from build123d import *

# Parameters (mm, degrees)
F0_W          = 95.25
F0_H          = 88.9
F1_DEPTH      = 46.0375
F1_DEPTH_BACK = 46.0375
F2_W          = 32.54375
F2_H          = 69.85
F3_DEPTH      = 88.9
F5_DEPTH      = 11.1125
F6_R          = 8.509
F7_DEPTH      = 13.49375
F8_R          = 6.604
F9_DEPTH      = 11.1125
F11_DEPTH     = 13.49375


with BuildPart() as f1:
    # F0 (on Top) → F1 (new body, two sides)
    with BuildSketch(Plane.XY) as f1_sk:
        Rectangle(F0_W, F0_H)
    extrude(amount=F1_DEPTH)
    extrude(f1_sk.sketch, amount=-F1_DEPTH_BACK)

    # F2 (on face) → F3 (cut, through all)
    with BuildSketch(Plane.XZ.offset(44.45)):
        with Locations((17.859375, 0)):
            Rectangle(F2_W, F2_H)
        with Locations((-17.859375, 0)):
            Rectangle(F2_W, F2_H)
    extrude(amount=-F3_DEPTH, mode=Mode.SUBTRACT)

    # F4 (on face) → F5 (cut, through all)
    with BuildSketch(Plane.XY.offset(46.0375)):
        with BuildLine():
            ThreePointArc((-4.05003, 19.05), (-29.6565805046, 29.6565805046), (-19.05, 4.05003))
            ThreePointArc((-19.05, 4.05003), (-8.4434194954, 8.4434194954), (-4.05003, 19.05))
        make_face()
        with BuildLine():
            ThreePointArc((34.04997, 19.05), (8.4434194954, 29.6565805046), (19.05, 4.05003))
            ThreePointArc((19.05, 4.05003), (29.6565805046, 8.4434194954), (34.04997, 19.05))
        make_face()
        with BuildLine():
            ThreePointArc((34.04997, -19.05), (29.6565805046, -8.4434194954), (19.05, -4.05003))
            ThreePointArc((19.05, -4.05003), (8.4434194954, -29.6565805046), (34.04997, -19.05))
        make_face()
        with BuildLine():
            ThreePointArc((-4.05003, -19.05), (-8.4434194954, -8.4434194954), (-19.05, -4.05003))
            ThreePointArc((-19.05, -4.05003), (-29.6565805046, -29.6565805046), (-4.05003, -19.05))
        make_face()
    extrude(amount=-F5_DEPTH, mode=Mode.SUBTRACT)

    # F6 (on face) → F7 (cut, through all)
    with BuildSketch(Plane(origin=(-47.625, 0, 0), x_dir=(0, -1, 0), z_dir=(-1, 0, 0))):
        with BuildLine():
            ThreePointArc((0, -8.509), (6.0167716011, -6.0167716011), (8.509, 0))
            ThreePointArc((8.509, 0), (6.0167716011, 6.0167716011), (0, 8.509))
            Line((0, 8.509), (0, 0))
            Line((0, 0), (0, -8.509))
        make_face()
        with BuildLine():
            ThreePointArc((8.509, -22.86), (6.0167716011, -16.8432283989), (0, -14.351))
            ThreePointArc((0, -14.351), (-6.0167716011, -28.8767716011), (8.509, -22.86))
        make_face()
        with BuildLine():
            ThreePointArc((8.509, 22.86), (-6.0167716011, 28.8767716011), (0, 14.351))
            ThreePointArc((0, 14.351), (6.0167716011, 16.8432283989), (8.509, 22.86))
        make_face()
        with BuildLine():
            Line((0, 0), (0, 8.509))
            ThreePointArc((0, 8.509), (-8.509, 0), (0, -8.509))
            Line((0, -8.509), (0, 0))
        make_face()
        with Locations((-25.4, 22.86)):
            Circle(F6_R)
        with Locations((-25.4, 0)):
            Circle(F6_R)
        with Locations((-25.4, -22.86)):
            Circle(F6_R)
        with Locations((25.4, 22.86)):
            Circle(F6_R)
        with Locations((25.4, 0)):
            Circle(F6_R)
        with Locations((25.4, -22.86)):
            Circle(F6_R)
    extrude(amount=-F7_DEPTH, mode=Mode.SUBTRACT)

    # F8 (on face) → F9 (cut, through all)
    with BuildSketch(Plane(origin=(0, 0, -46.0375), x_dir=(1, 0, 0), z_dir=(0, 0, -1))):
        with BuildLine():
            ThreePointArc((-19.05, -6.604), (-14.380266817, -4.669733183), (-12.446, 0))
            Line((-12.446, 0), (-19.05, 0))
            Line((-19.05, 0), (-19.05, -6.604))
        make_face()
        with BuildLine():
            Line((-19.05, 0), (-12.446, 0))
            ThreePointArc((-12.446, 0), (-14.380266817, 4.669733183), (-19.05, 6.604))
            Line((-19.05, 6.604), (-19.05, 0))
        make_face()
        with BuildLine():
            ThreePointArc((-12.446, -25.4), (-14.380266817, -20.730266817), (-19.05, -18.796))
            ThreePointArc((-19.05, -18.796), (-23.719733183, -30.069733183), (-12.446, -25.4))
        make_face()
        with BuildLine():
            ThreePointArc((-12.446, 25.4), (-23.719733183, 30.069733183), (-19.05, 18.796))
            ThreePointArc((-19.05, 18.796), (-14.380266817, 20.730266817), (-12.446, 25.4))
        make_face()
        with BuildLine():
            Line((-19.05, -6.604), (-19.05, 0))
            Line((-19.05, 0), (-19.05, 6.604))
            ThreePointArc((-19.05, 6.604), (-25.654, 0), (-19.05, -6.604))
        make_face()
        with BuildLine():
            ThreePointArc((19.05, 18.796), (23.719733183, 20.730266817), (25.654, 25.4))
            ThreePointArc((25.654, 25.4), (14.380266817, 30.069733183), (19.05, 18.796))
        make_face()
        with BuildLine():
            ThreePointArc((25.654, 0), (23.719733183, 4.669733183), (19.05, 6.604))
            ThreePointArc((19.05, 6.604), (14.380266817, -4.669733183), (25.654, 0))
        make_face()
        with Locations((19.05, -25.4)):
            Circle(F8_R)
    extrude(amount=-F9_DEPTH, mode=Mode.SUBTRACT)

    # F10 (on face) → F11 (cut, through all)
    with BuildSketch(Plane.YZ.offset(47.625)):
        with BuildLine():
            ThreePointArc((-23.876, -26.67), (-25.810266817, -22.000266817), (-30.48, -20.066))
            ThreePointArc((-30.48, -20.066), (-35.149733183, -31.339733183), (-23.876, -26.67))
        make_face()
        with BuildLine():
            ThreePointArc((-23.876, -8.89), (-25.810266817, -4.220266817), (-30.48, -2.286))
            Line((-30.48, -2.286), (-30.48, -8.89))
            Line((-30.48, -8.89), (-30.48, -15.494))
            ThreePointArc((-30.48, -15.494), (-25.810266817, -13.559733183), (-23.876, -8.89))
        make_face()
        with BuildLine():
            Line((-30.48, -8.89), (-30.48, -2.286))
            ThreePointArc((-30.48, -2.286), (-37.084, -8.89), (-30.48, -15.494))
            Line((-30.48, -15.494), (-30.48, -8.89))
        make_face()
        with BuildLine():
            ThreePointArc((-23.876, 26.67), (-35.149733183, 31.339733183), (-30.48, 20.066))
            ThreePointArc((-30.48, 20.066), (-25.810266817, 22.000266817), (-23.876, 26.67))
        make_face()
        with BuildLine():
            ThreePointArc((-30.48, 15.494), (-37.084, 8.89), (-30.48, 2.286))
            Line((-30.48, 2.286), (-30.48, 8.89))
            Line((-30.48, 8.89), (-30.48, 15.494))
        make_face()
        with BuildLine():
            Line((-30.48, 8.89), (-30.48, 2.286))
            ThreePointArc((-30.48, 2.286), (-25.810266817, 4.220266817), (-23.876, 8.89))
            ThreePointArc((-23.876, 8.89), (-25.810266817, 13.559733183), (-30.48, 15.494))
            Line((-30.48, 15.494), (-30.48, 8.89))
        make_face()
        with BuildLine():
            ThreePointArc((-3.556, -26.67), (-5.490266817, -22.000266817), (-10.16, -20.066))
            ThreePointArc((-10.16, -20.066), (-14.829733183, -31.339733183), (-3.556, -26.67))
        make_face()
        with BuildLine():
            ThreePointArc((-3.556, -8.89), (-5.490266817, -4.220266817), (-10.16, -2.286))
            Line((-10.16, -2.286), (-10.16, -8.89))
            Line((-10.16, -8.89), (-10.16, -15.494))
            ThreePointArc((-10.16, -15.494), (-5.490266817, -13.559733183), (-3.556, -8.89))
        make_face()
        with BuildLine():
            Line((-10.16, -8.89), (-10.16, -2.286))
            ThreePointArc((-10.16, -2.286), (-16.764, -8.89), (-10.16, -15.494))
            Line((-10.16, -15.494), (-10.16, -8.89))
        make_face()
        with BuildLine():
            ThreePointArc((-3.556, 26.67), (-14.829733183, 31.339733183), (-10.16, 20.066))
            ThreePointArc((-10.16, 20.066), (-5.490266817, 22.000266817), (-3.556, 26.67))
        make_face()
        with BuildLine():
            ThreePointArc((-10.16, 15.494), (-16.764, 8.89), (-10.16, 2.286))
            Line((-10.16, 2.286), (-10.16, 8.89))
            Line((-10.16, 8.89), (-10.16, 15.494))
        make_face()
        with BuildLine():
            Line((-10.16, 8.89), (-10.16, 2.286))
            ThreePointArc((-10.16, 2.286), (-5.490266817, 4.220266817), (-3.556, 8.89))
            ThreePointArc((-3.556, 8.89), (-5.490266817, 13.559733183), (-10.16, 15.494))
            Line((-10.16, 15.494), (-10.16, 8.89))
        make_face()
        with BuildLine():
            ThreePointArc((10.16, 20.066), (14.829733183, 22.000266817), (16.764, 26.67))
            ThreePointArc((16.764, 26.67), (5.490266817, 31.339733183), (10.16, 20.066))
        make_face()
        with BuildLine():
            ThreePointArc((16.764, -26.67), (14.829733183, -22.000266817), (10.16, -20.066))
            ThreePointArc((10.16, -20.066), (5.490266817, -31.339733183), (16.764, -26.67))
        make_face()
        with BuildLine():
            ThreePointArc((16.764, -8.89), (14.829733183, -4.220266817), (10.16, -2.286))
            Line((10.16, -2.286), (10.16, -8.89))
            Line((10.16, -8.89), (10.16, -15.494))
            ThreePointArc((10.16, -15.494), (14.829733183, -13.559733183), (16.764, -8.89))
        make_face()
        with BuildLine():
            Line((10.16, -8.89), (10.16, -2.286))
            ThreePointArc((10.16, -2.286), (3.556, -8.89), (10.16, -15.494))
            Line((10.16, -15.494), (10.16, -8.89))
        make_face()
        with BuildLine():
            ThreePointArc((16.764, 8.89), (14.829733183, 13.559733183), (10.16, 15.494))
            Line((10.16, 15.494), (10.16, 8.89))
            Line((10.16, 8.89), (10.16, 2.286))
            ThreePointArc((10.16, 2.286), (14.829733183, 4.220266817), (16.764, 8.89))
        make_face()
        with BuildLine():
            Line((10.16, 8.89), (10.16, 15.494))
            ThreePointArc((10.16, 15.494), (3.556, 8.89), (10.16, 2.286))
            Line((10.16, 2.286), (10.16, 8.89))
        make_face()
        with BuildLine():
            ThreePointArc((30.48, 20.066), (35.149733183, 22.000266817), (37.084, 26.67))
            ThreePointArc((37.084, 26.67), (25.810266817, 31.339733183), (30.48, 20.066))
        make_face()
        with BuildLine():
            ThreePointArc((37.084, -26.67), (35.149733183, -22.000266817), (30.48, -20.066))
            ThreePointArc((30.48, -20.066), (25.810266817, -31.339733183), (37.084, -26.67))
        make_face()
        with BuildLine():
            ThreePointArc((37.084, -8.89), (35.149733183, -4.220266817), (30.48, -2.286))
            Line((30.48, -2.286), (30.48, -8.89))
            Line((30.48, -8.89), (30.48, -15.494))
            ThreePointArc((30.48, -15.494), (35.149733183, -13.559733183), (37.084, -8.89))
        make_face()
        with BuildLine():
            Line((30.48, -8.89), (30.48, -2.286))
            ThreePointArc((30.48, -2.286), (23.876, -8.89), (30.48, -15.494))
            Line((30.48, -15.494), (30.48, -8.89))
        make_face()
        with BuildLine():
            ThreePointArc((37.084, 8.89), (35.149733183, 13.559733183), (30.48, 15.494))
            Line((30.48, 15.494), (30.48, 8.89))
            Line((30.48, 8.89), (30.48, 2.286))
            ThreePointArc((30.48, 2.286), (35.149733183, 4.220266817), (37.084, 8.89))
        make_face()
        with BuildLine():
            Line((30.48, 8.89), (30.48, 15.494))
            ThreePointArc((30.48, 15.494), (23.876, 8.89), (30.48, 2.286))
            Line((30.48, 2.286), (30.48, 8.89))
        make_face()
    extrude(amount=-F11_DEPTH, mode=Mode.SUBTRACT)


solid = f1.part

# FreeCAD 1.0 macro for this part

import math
import FreeCAD as App
import Part
import Sketcher
Q = App.Units.Quantity


def add_polygon(sketch, points):
    """Adds a closed chain of lines whose ends are joined by coincident constraints."""
    first, n = sketch.GeometryCount, len(points)
    for a, b in zip(points, points[1:] + points[:1]):
        sketch.addGeometry(Part.LineSegment(App.Vector(*a, 0), App.Vector(*b, 0)), False)
    for i in range(n):
        sketch.addConstraint(Sketcher.Constraint("Coincident", first + i, 2, first + (i + 1) % n, 1))

doc = App.newDocument("Part")
body = doc.addObject("PartDesign::Body", "Body")

# Sketch on XY plane
sketch1 = body.newObject("Sketcher::SketchObject", "Sketch")
sketch1.AttachmentSupport = (doc.getObject("XY_Plane"), [""])
sketch1.MapMode = "FlatFace"
add_polygon(sketch1, [(-47.625, 44.45), (-47.625, -44.45), (47.625, -44.45), (47.625, 44.45)])  # lines 0-3
sketch1.addConstraint(Sketcher.Constraint("Vertical", 0))
sketch1.addConstraint(Sketcher.Constraint("Horizontal", 1))
sketch1.addConstraint(Sketcher.Constraint("Vertical", 2))
sketch1.addConstraint(Sketcher.Constraint("Horizontal", 3))
sketch1.addConstraint(Sketcher.Constraint("Symmetric", 0, 2, 2, 2, -1, 1))
sketch1.addConstraint(Sketcher.Constraint("DistanceY", 0, 2, 0, 1, Q("3.5 in")))
sketch1.addConstraint(Sketcher.Constraint("DistanceX", 1, 1, 1, 2, Q("3.75 in")))
pad1 = body.newObject("PartDesign::Pad", "Pad")
pad1.Profile = sketch1
pad1.Type = "TwoLengths"
pad1.Length = Q("1.8125 in")
pad1.Length2 = Q("1.8125 in")

# Sketch on XZ plane
sketch2 = body.newObject("Sketcher::SketchObject", "Sketch001")
sketch2.AttachmentSupport = (doc.getObject("XZ_Plane"), [""])
sketch2.MapMode = "FlatFace"
sketch2.AttachmentOffset = App.Placement(App.Vector(0, 0, 1.75 * 25.4), App.Rotation())
add_polygon(sketch2, [(1.5875, 34.925), (1.5875, -34.925), (34.13125, -34.925), (34.13125, 34.925)])  # lines 0-3
add_polygon(sketch2, [(-34.13125, 34.925), (-34.13125, -34.925), (-1.5875, -34.925), (-1.5875, 34.925)])  # lines 4-7
sketch2.addConstraint(Sketcher.Constraint("Vertical", 0))
sketch2.addConstraint(Sketcher.Constraint("Horizontal", 1))
sketch2.addConstraint(Sketcher.Constraint("Vertical", 2))
sketch2.addConstraint(Sketcher.Constraint("Horizontal", 3))
sketch2.addConstraint(Sketcher.Constraint("Vertical", 4))
sketch2.addConstraint(Sketcher.Constraint("Horizontal", 5))
sketch2.addConstraint(Sketcher.Constraint("Vertical", 6))
sketch2.addConstraint(Sketcher.Constraint("Horizontal", 7))
sketch2.addConstraint(Sketcher.Constraint("Symmetric", 2, 2, 4, 2, -1, 1))
sketch2.addConstraint(Sketcher.Constraint("Symmetric", 0, 2, 6, 2, -1, 1))
sketch2.addConstraint(Sketcher.Constraint("Horizontal", 1, 2, 4, 2))
sketch2.addConstraint(Sketcher.Constraint("DistanceY", 0, 2, 0, 1, Q("2.75 in")))
sketch2.addConstraint(Sketcher.Constraint("DistanceX", 1, 1, 1, 2, Q("1.28125 in")))
sketch2.addConstraint(Sketcher.Constraint("DistanceX", -1, 1, 0, 2, Q("0.0625 in")))
pocket1 = body.newObject("PartDesign::Pocket", "Pocket")
pocket1.Profile = sketch2
pocket1.Type = "ThroughAll"

# Sketch on XY plane
sketch3 = body.newObject("Sketcher::SketchObject", "Sketch002")
sketch3.AttachmentSupport = (doc.getObject("XY_Plane"), [""])
sketch3.MapMode = "FlatFace"
sketch3.AttachmentOffset = App.Placement(App.Vector(0, 0, 1.8125 * 25.4), App.Rotation())
sketch3.addGeometry(Part.ArcOfCircle(Part.Circle(App.Vector(-19.05, 19.05, 0), App.Vector(0, 0, 1), 14.99997), math.radians(0), math.radians(270)), False)
sketch3.addGeometry(Part.ArcOfCircle(Part.Circle(App.Vector(-19.05, 19.05, 0), App.Vector(0, 0, 1), 14.99997), math.radians(-90), math.radians(0)), False)
sketch3.addGeometry(Part.ArcOfCircle(Part.Circle(App.Vector(19.05, 19.05, 0), App.Vector(0, 0, 1), 14.99997), math.radians(0), math.radians(270)), False)
sketch3.addGeometry(Part.ArcOfCircle(Part.Circle(App.Vector(19.05, 19.05, 0), App.Vector(0, 0, 1), 14.99997), math.radians(-90), math.radians(0)), False)
sketch3.addGeometry(Part.ArcOfCircle(Part.Circle(App.Vector(19.05, -19.05, 0), App.Vector(0, 0, 1), 14.99997), math.radians(0), math.radians(90)), False)
sketch3.addGeometry(Part.ArcOfCircle(Part.Circle(App.Vector(19.05, -19.05, 0), App.Vector(0, 0, 1), 14.99997), math.radians(90), math.radians(360)), False)
sketch3.addGeometry(Part.ArcOfCircle(Part.Circle(App.Vector(-19.05, -19.05, 0), App.Vector(0, 0, 1), 14.99997), math.radians(0), math.radians(90)), False)
sketch3.addGeometry(Part.ArcOfCircle(Part.Circle(App.Vector(-19.05, -19.05, 0), App.Vector(0, 0, 1), 14.99997), math.radians(90), math.radians(360)), False)
sketch3.addConstraint(Sketcher.Constraint("Tangent", 0, 1, 1, 2))
sketch3.addConstraint(Sketcher.Constraint("Coincident", 1, 1, 0, 2))
sketch3.addConstraint(Sketcher.Constraint("Tangent", 2, 1, 3, 2))
sketch3.addConstraint(Sketcher.Constraint("Coincident", 3, 1, 2, 2))
sketch3.addConstraint(Sketcher.Constraint("Tangent", 4, 1, 5, 2))
sketch3.addConstraint(Sketcher.Constraint("Coincident", 5, 1, 4, 2))
sketch3.addConstraint(Sketcher.Constraint("Tangent", 6, 1, 7, 2))
sketch3.addConstraint(Sketcher.Constraint("Coincident", 7, 1, 6, 2))
sketch3.addConstraint(Sketcher.Constraint("Equal", 1, 2))
sketch3.addConstraint(Sketcher.Constraint("Equal", 3, 4))
sketch3.addConstraint(Sketcher.Constraint("Equal", 5, 6))
sketch3.addConstraint(Sketcher.Constraint("Symmetric", 0, 3, 4, 3, -1, 1))
sketch3.addConstraint(Sketcher.Constraint("Symmetric", 2, 3, 6, 3, -1, 1))
sketch3.addConstraint(Sketcher.Constraint("Symmetric", 0, 3, 2, 3, -2))
sketch3.addConstraint(Sketcher.Constraint("Horizontal", 3, 3, 0, 1))
sketch3.addConstraint(Sketcher.Constraint("Horizontal", 0, 1, 2, 1))
sketch3.addConstraint(Sketcher.Constraint("Horizontal", 7, 3, 4, 1))
sketch3.addConstraint(Sketcher.Constraint("Horizontal", 4, 1, 6, 1))
sketch3.addConstraint(Sketcher.Constraint("Vertical", 7, 3, 1, 1))
sketch3.addConstraint(Sketcher.Constraint("Vertical", 5, 3, 3, 1))
sketch3.addConstraint(Sketcher.Constraint("Vertical", 3, 1, 5, 1))
sketch3.addConstraint(Sketcher.Constraint("Vertical", 1, 1, 7, 1))
sketch3.addConstraint(Sketcher.Constraint("DistanceX", 0, 3, 2, 3, Q("1.5 in")))
sketch3.addConstraint(Sketcher.Constraint("DistanceY", 4, 3, 2, 3, Q("1.5 in")))
sketch3.addConstraint(Sketcher.Constraint("Radius", 0, Q("14.99997 mm")))
pocket2 = body.newObject("PartDesign::Pocket", "Pocket001")
pocket2.Profile = sketch3
pocket2.Length = Q("0.4375 in")

# Sketch on YZ plane
sketch4 = body.newObject("Sketcher::SketchObject", "Sketch003")
sketch4.AttachmentSupport = (doc.getObject("YZ_Plane"), [""])
sketch4.MapMode = "FlatFace"
sketch4.AttachmentOffset = App.Placement(App.Vector(0, 0, -1.875 * 25.4), App.Rotation())
sketch4.addGeometry(Part.ArcOfCircle(Part.Circle(App.Vector(0, 0, 0), App.Vector(0, 0, 1), 8.509), math.radians(180), math.radians(270)), False)
sketch4.addGeometry(Part.ArcOfCircle(Part.Circle(App.Vector(0, 0, 0), App.Vector(0, 0, 1), 8.509), math.radians(90), math.radians(180)), False)
sketch4.addGeometry(Part.ArcOfCircle(Part.Circle(App.Vector(0, 0, 0), App.Vector(0, 0, 1), 8.509), math.radians(-90), math.radians(90)), False)
sketch4.addGeometry(Part.ArcOfCircle(Part.Circle(App.Vector(0, -22.86, 0), App.Vector(0, 0, 1), 8.509), math.radians(90), math.radians(180)), False)
sketch4.addGeometry(Part.ArcOfCircle(Part.Circle(App.Vector(0, -22.86, 0), App.Vector(0, 0, 1), 8.509), math.radians(180), math.radians(450)), False)
sketch4.addGeometry(Part.ArcOfCircle(Part.Circle(App.Vector(0, 22.86, 0), App.Vector(0, 0, 1), 8.509), math.radians(-90), math.radians(180)), False)
sketch4.addGeometry(Part.ArcOfCircle(Part.Circle(App.Vector(0, 22.86, 0), App.Vector(0, 0, 1), 8.509), math.radians(180), math.radians(270)), False)
sketch4.addGeometry(Part.Circle(App.Vector(25.4, 22.86, 0), App.Vector(0, 0, 1), 8.509), False)
sketch4.addGeometry(Part.Circle(App.Vector(25.4, 0, 0), App.Vector(0, 0, 1), 8.509), False)
sketch4.addGeometry(Part.Circle(App.Vector(25.4, -22.86, 0), App.Vector(0, 0, 1), 8.509), False)
sketch4.addGeometry(Part.Circle(App.Vector(-25.4, 22.86, 0), App.Vector(0, 0, 1), 8.509), False)
sketch4.addGeometry(Part.Circle(App.Vector(-25.4, 0, 0), App.Vector(0, 0, 1), 8.509), False)
sketch4.addGeometry(Part.Circle(App.Vector(-25.4, -22.86, 0), App.Vector(0, 0, 1), 8.509), False)
sketch4.addConstraint(Sketcher.Constraint("Tangent", 0, 1, 1, 2))
sketch4.addConstraint(Sketcher.Constraint("Tangent", 1, 1, 2, 2))
sketch4.addConstraint(Sketcher.Constraint("Tangent", 2, 1, 0, 2))
sketch4.addConstraint(Sketcher.Constraint("Tangent", 3, 1, 4, 2))
sketch4.addConstraint(Sketcher.Constraint("Coincident", 4, 1, 3, 2))
sketch4.addConstraint(Sketcher.Constraint("Tangent", 5, 1, 6, 2))
sketch4.addConstraint(Sketcher.Constraint("Coincident", 6, 1, 5, 2))
sketch4.addConstraint(Sketcher.Constraint("Coincident", 0, 3, -1, 1))
sketch4.addConstraint(Sketcher.Constraint("Equal", 2, 3))
sketch4.addConstraint(Sketcher.Constraint("Equal", 4, 5))
sketch4.addConstraint(Sketcher.Constraint("Equal", 6, 7))
sketch4.addConstraint(Sketcher.Constraint("Equal", 7, 8))
sketch4.addConstraint(Sketcher.Constraint("Equal", 8, 9))
sketch4.addConstraint(Sketcher.Constraint("Equal", 9, 10))
sketch4.addConstraint(Sketcher.Constraint("Equal", 10, 11))
sketch4.addConstraint(Sketcher.Constraint("Equal", 11, 12))
sketch4.addConstraint(Sketcher.Constraint("Symmetric", 3, 3, 5, 3, -1, 1))
sketch4.addConstraint(Sketcher.Constraint("Symmetric", 9, 3, 10, 3, -1, 1))
sketch4.addConstraint(Sketcher.Constraint("Symmetric", 8, 3, 11, 3, -1, 1))
sketch4.addConstraint(Sketcher.Constraint("Symmetric", 7, 3, 12, 3, -1, 1))
sketch4.addConstraint(Sketcher.Constraint("Symmetric", 7, 3, 10, 3, -2))
sketch4.addConstraint(Sketcher.Constraint("Symmetric", 4, 1, 6, 1, -1))
sketch4.addConstraint(Sketcher.Constraint("PointOnObject", 8, 3, -1))
sketch4.addConstraint(Sketcher.Constraint("PointOnObject", 0, 1, -1))
sketch4.addConstraint(Sketcher.Constraint("PointOnObject", 1, 1, -2))
sketch4.addConstraint(Sketcher.Constraint("PointOnObject", 2, 1, -2))
sketch4.addConstraint(Sketcher.Constraint("PointOnObject", 3, 1, -2))
sketch4.addConstraint(Sketcher.Constraint("PointOnObject", 5, 1, -2))
sketch4.addConstraint(Sketcher.Constraint("Horizontal", 6, 3, 7, 3))
sketch4.addConstraint(Sketcher.Constraint("Horizontal", 12, 3, 4, 1))
sketch4.addConstraint(Sketcher.Constraint("Vertical", 7, 3, 8, 3))
sketch4.addConstraint(Sketcher.Constraint("Diameter", 7, Q("0.67 in")))
sketch4.addConstraint(Sketcher.Constraint("DistanceX", -1, 1, 7, 3, Q("1 in")))
sketch4.addConstraint(Sketcher.Constraint("DistanceY", 3, 3, -1, 1, Q("0.9 in")))
pocket3 = body.newObject("PartDesign::Pocket", "Pocket002")
pocket3.Profile = sketch4
pocket3.Length = Q("0.53125 in")
pocket3.Reversed = True

# Sketch on XY plane
sketch5 = body.newObject("Sketcher::SketchObject", "Sketch004")
sketch5.AttachmentSupport = (doc.getObject("XY_Plane"), [""])
sketch5.MapMode = "FlatFace"
sketch5.AttachmentOffset = App.Placement(App.Vector(0, 0, -1.8125 * 25.4), App.Rotation())
sketch5.addGeometry(Part.ArcOfCircle(Part.Circle(App.Vector(-19.05, 0, 0), App.Vector(0, 0, 1), 6.604), math.radians(0), math.radians(90)), False)
sketch5.addGeometry(Part.ArcOfCircle(Part.Circle(App.Vector(-19.05, 0, 0), App.Vector(0, 0, 1), 6.604), math.radians(-90), math.radians(0)), False)
sketch5.addGeometry(Part.ArcOfCircle(Part.Circle(App.Vector(-19.05, 0, 0), App.Vector(0, 0, 1), 6.604), math.radians(90), math.radians(270)), False)
sketch5.addGeometry(Part.ArcOfCircle(Part.Circle(App.Vector(-19.05, 25.4, 0), App.Vector(0, 0, 1), 6.604), math.radians(-90), math.radians(0)), False)
sketch5.addGeometry(Part.ArcOfCircle(Part.Circle(App.Vector(-19.05, 25.4, 0), App.Vector(0, 0, 1), 6.604), math.radians(0), math.radians(270)), False)
sketch5.addGeometry(Part.ArcOfCircle(Part.Circle(App.Vector(-19.05, -25.4, 0), App.Vector(0, 0, 1), 6.604), math.radians(90), math.radians(360)), False)
sketch5.addGeometry(Part.ArcOfCircle(Part.Circle(App.Vector(-19.05, -25.4, 0), App.Vector(0, 0, 1), 6.604), math.radians(0), math.radians(90)), False)
sketch5.addGeometry(Part.ArcOfCircle(Part.Circle(App.Vector(19.05, -25.4, 0), App.Vector(0, 0, 1), 6.604), math.radians(0), math.radians(90)), False)
sketch5.addGeometry(Part.ArcOfCircle(Part.Circle(App.Vector(19.05, -25.4, 0), App.Vector(0, 0, 1), 6.604), math.radians(90), math.radians(360)), False)
sketch5.addGeometry(Part.ArcOfCircle(Part.Circle(App.Vector(19.05, 0, 0), App.Vector(0, 0, 1), 6.604), math.radians(-90), math.radians(0)), False)
sketch5.addGeometry(Part.ArcOfCircle(Part.Circle(App.Vector(19.05, 0, 0), App.Vector(0, 0, 1), 6.604), math.radians(0), math.radians(270)), False)
sketch5.addGeometry(Part.Circle(App.Vector(19.05, 25.4, 0), App.Vector(0, 0, 1), 6.604), False)
sketch5.addConstraint(Sketcher.Constraint("Tangent", 0, 1, 1, 2))
sketch5.addConstraint(Sketcher.Constraint("Tangent", 1, 1, 2, 2))
sketch5.addConstraint(Sketcher.Constraint("Tangent", 2, 1, 0, 2))
sketch5.addConstraint(Sketcher.Constraint("Tangent", 3, 1, 4, 2))
sketch5.addConstraint(Sketcher.Constraint("Coincident", 4, 1, 3, 2))
sketch5.addConstraint(Sketcher.Constraint("Tangent", 5, 1, 6, 2))
sketch5.addConstraint(Sketcher.Constraint("Coincident", 6, 1, 5, 2))
sketch5.addConstraint(Sketcher.Constraint("Tangent", 7, 1, 8, 2))
sketch5.addConstraint(Sketcher.Constraint("Coincident", 8, 1, 7, 2))
sketch5.addConstraint(Sketcher.Constraint("Tangent", 9, 1, 10, 2))
sketch5.addConstraint(Sketcher.Constraint("Coincident", 10, 1, 9, 2))
sketch5.addConstraint(Sketcher.Constraint("Equal", 2, 3))
sketch5.addConstraint(Sketcher.Constraint("Equal", 4, 5))
sketch5.addConstraint(Sketcher.Constraint("Equal", 6, 7))
sketch5.addConstraint(Sketcher.Constraint("Equal", 8, 9))
sketch5.addConstraint(Sketcher.Constraint("Equal", 10, 11))
sketch5.addConstraint(Sketcher.Constraint("Symmetric", 3, 3, 7, 3, -1, 1))
sketch5.addConstraint(Sketcher.Constraint("Symmetric", 0, 3, 9, 3, -1, 1))
sketch5.addConstraint(Sketcher.Constraint("Symmetric", 5, 3, 11, 3, -1, 1))
sketch5.addConstraint(Sketcher.Constraint("Symmetric", 5, 3, 7, 3, -2))
sketch5.addConstraint(Sketcher.Constraint("Symmetric", 1, 1, 9, 1, -2))
sketch5.addConstraint(Sketcher.Constraint("PointOnObject", 0, 1, -1))
sketch5.addConstraint(Sketcher.Constraint("PointOnObject", 10, 1, -1))
sketch5.addConstraint(Sketcher.Constraint("Horizontal", 11, 3, 4, 1))
sketch5.addConstraint(Sketcher.Constraint("Horizontal", 8, 3, 6, 1))
sketch5.addConstraint(Sketcher.Constraint("Horizontal", 6, 1, 7, 1))
sketch5.addConstraint(Sketcher.Constraint("Vertical", 2, 3, 3, 3))
sketch5.addConstraint(Sketcher.Constraint("Vertical", 6, 3, 1, 1))
sketch5.addConstraint(Sketcher.Constraint("Vertical", 1, 1, 2, 1))
sketch5.addConstraint(Sketcher.Constraint("Vertical", 2, 1, 3, 1))
sketch5.addConstraint(Sketcher.Constraint("Vertical", 3, 1, 5, 1))
sketch5.addConstraint(Sketcher.Constraint("Vertical", 11, 3, 8, 1))
sketch5.addConstraint(Sketcher.Constraint("Diameter", 11, Q("0.52 in")))
sketch5.addConstraint(Sketcher.Constraint("DistanceY", -1, 1, 3, 3, Q("1 in")))
sketch5.addConstraint(Sketcher.Constraint("DistanceX", 5, 3, 7, 3, Q("1.5 in")))
pocket4 = body.newObject("PartDesign::Pocket", "Pocket003")
pocket4.Profile = sketch5
pocket4.Length = Q("0.4375 in")
pocket4.Reversed = True

# Sketch on YZ plane
sketch6 = body.newObject("Sketcher::SketchObject", "Sketch005")
sketch6.AttachmentSupport = (doc.getObject("YZ_Plane"), [""])
sketch6.MapMode = "FlatFace"
sketch6.AttachmentOffset = App.Placement(App.Vector(0, 0, 1.875 * 25.4), App.Rotation())
sketch6.addGeometry(Part.ArcOfCircle(Part.Circle(App.Vector(-30.48, -26.67, 0), App.Vector(0, 0, 1), 6.604), math.radians(0), math.radians(90)), False)
sketch6.addGeometry(Part.ArcOfCircle(Part.Circle(App.Vector(-30.48, -26.67, 0), App.Vector(0, 0, 1), 6.604), math.radians(90), math.radians(360)), False)
sketch6.addGeometry(Part.ArcOfCircle(Part.Circle(App.Vector(-30.48, -8.89, 0), App.Vector(0, 0, 1), 6.604), math.radians(0), math.radians(90)), False)
sketch6.addGeometry(Part.ArcOfCircle(Part.Circle(App.Vector(-30.48, -8.89, 0), App.Vector(0, 0, 1), 6.604), math.radians(90), math.radians(270)), False)
sketch6.addGeometry(Part.ArcOfCircle(Part.Circle(App.Vector(-30.48, -8.89, 0), App.Vector(0, 0, 1), 6.604), math.radians(-90), math.radians(0)), False)
sketch6.addGeometry(Part.ArcOfCircle(Part.Circle(App.Vector(-30.48, 26.67, 0), App.Vector(0, 0, 1), 6.604), math.radians(0), math.radians(270)), False)
sketch6.addGeometry(Part.ArcOfCircle(Part.Circle(App.Vector(-30.48, 26.67, 0), App.Vector(0, 0, 1), 6.604), math.radians(-90), math.radians(0)), False)
sketch6.addGeometry(Part.ArcOfCircle(Part.Circle(App.Vector(-30.48, 8.89, 0), App.Vector(0, 0, 1), 6.604), math.radians(90), math.radians(270)), False)
sketch6.addGeometry(Part.ArcOfCircle(Part.Circle(App.Vector(-30.48, 8.89, 0), App.Vector(0, 0, 1), 6.604), math.radians(-90), math.radians(0)), False)
sketch6.addGeometry(Part.ArcOfCircle(Part.Circle(App.Vector(-30.48, 8.89, 0), App.Vector(0, 0, 1), 6.604), math.radians(0), math.radians(90)), False)
sketch6.addGeometry(Part.ArcOfCircle(Part.Circle(App.Vector(-10.16, -26.67, 0), App.Vector(0, 0, 1), 6.604), math.radians(0), math.radians(90)), False)
sketch6.addGeometry(Part.ArcOfCircle(Part.Circle(App.Vector(-10.16, -26.67, 0), App.Vector(0, 0, 1), 6.604), math.radians(90), math.radians(360)), False)
sketch6.addGeometry(Part.ArcOfCircle(Part.Circle(App.Vector(-10.16, -8.89, 0), App.Vector(0, 0, 1), 6.604), math.radians(0), math.radians(90)), False)
sketch6.addGeometry(Part.ArcOfCircle(Part.Circle(App.Vector(-10.16, -8.89, 0), App.Vector(0, 0, 1), 6.604), math.radians(90), math.radians(270)), False)
sketch6.addGeometry(Part.ArcOfCircle(Part.Circle(App.Vector(-10.16, -8.89, 0), App.Vector(0, 0, 1), 6.604), math.radians(-90), math.radians(0)), False)
sketch6.addGeometry(Part.ArcOfCircle(Part.Circle(App.Vector(-10.16, 26.67, 0), App.Vector(0, 0, 1), 6.604), math.radians(0), math.radians(270)), False)
sketch6.addGeometry(Part.ArcOfCircle(Part.Circle(App.Vector(-10.16, 26.67, 0), App.Vector(0, 0, 1), 6.604), math.radians(-90), math.radians(0)), False)
sketch6.addGeometry(Part.ArcOfCircle(Part.Circle(App.Vector(-10.16, 8.89, 0), App.Vector(0, 0, 1), 6.604), math.radians(90), math.radians(270)), False)
sketch6.addGeometry(Part.ArcOfCircle(Part.Circle(App.Vector(-10.16, 8.89, 0), App.Vector(0, 0, 1), 6.604), math.radians(-90), math.radians(0)), False)
sketch6.addGeometry(Part.ArcOfCircle(Part.Circle(App.Vector(-10.16, 8.89, 0), App.Vector(0, 0, 1), 6.604), math.radians(0), math.radians(90)), False)
sketch6.addGeometry(Part.ArcOfCircle(Part.Circle(App.Vector(10.16, 26.67, 0), App.Vector(0, 0, 1), 6.604), math.radians(-90), math.radians(0)), False)
sketch6.addGeometry(Part.ArcOfCircle(Part.Circle(App.Vector(10.16, 26.67, 0), App.Vector(0, 0, 1), 6.604), math.radians(0), math.radians(270)), False)
sketch6.addGeometry(Part.ArcOfCircle(Part.Circle(App.Vector(10.16, -26.67, 0), App.Vector(0, 0, 1), 6.604), math.radians(0), math.radians(90)), False)
sketch6.addGeometry(Part.ArcOfCircle(Part.Circle(App.Vector(10.16, -26.67, 0), App.Vector(0, 0, 1), 6.604), math.radians(90), math.radians(360)), False)
sketch6.addGeometry(Part.ArcOfCircle(Part.Circle(App.Vector(10.16, -8.89, 0), App.Vector(0, 0, 1), 6.604), math.radians(0), math.radians(90)), False)
sketch6.addGeometry(Part.ArcOfCircle(Part.Circle(App.Vector(10.16, -8.89, 0), App.Vector(0, 0, 1), 6.604), math.radians(90), math.radians(270)), False)
sketch6.addGeometry(Part.ArcOfCircle(Part.Circle(App.Vector(10.16, -8.89, 0), App.Vector(0, 0, 1), 6.604), math.radians(-90), math.radians(0)), False)
sketch6.addGeometry(Part.ArcOfCircle(Part.Circle(App.Vector(10.16, 8.89, 0), App.Vector(0, 0, 1), 6.604), math.radians(0), math.radians(90)), False)
sketch6.addGeometry(Part.ArcOfCircle(Part.Circle(App.Vector(10.16, 8.89, 0), App.Vector(0, 0, 1), 6.604), math.radians(90), math.radians(270)), False)
sketch6.addGeometry(Part.ArcOfCircle(Part.Circle(App.Vector(10.16, 8.89, 0), App.Vector(0, 0, 1), 6.604), math.radians(-90), math.radians(0)), False)
sketch6.addGeometry(Part.ArcOfCircle(Part.Circle(App.Vector(30.48, 26.67, 0), App.Vector(0, 0, 1), 6.604), math.radians(-90), math.radians(0)), False)
sketch6.addGeometry(Part.ArcOfCircle(Part.Circle(App.Vector(30.48, 26.67, 0), App.Vector(0, 0, 1), 6.604), math.radians(0), math.radians(270)), False)
sketch6.addGeometry(Part.ArcOfCircle(Part.Circle(App.Vector(30.48, -26.67, 0), App.Vector(0, 0, 1), 6.604), math.radians(0), math.radians(90)), False)
sketch6.addGeometry(Part.ArcOfCircle(Part.Circle(App.Vector(30.48, -26.67, 0), App.Vector(0, 0, 1), 6.604), math.radians(90), math.radians(360)), False)
sketch6.addGeometry(Part.ArcOfCircle(Part.Circle(App.Vector(30.48, -8.89, 0), App.Vector(0, 0, 1), 6.604), math.radians(0), math.radians(90)), False)
sketch6.addGeometry(Part.ArcOfCircle(Part.Circle(App.Vector(30.48, -8.89, 0), App.Vector(0, 0, 1), 6.604), math.radians(90), math.radians(270)), False)
sketch6.addGeometry(Part.ArcOfCircle(Part.Circle(App.Vector(30.48, -8.89, 0), App.Vector(0, 0, 1), 6.604), math.radians(-90), math.radians(0)), False)
sketch6.addGeometry(Part.ArcOfCircle(Part.Circle(App.Vector(30.48, 8.89, 0), App.Vector(0, 0, 1), 6.604), math.radians(0), math.radians(90)), False)
sketch6.addGeometry(Part.ArcOfCircle(Part.Circle(App.Vector(30.48, 8.89, 0), App.Vector(0, 0, 1), 6.604), math.radians(90), math.radians(270)), False)
sketch6.addGeometry(Part.ArcOfCircle(Part.Circle(App.Vector(30.48, 8.89, 0), App.Vector(0, 0, 1), 6.604), math.radians(-90), math.radians(0)), False)
sketch6.addConstraint(Sketcher.Constraint("Tangent", 0, 1, 1, 2))
sketch6.addConstraint(Sketcher.Constraint("Coincident", 1, 1, 0, 2))
sketch6.addConstraint(Sketcher.Constraint("Tangent", 2, 2, 3, 1))
sketch6.addConstraint(Sketcher.Constraint("Tangent", 3, 2, 4, 1))
sketch6.addConstraint(Sketcher.Constraint("Tangent", 4, 2, 2, 1))
sketch6.addConstraint(Sketcher.Constraint("Tangent", 5, 1, 6, 2))
sketch6.addConstraint(Sketcher.Constraint("Coincident", 6, 1, 5, 2))
sketch6.addConstraint(Sketcher.Constraint("Tangent", 7, 2, 8, 1))
sketch6.addConstraint(Sketcher.Constraint("Tangent", 8, 2, 9, 1))
sketch6.addConstraint(Sketcher.Constraint("Tangent", 9, 2, 7, 1))
sketch6.addConstraint(Sketcher.Constraint("Tangent", 10, 1, 11, 2))
sketch6.addConstraint(Sketcher.Constraint("Coincident", 11, 1, 10, 2))
sketch6.addConstraint(Sketcher.Constraint("Tangent", 12, 2, 13, 1))
sketch6.addConstraint(Sketcher.Constraint("Tangent", 13, 2, 14, 1))
sketch6.addConstraint(Sketcher.Constraint("Tangent", 14, 2, 12, 1))
sketch6.addConstraint(Sketcher.Constraint("Tangent", 15, 1, 16, 2))
sketch6.addConstraint(Sketcher.Constraint("Coincident", 16, 1, 15, 2))
sketch6.addConstraint(Sketcher.Constraint("Tangent", 17, 2, 18, 1))
sketch6.addConstraint(Sketcher.Constraint("Tangent", 18, 2, 19, 1))
sketch6.addConstraint(Sketcher.Constraint("Tangent", 19, 2, 17, 1))
sketch6.addConstraint(Sketcher.Constraint("Tangent", 20, 1, 21, 2))
sketch6.addConstraint(Sketcher.Constraint("Coincident", 21, 1, 20, 2))
sketch6.addConstraint(Sketcher.Constraint("Tangent", 22, 1, 23, 2))
sketch6.addConstraint(Sketcher.Constraint("Coincident", 23, 1, 22, 2))
sketch6.addConstraint(Sketcher.Constraint("Tangent", 24, 2, 25, 1))
sketch6.addConstraint(Sketcher.Constraint("Tangent", 25, 2, 26, 1))
sketch6.addConstraint(Sketcher.Constraint("Tangent", 26, 2, 24, 1))
sketch6.addConstraint(Sketcher.Constraint("Tangent", 27, 2, 28, 1))
sketch6.addConstraint(Sketcher.Constraint("Tangent", 28, 2, 29, 1))
sketch6.addConstraint(Sketcher.Constraint("Tangent", 29, 2, 27, 1))
sketch6.addConstraint(Sketcher.Constraint("Tangent", 30, 1, 31, 2))
sketch6.addConstraint(Sketcher.Constraint("Coincident", 31, 1, 30, 2))
sketch6.addConstraint(Sketcher.Constraint("Tangent", 32, 1, 33, 2))
sketch6.addConstraint(Sketcher.Constraint("Coincident", 33, 1, 32, 2))
sketch6.addConstraint(Sketcher.Constraint("Tangent", 34, 2, 35, 1))
sketch6.addConstraint(Sketcher.Constraint("Tangent", 35, 2, 36, 1))
sketch6.addConstraint(Sketcher.Constraint("Tangent", 36, 2, 34, 1))
sketch6.addConstraint(Sketcher.Constraint("Tangent", 37, 2, 38, 1))
sketch6.addConstraint(Sketcher.Constraint("Tangent", 38, 2, 39, 1))
sketch6.addConstraint(Sketcher.Constraint("Tangent", 39, 2, 37, 1))
sketch6.addConstraint(Sketcher.Constraint("Equal", 1, 2))
sketch6.addConstraint(Sketcher.Constraint("Equal", 4, 5))
sketch6.addConstraint(Sketcher.Constraint("Equal", 6, 7))
sketch6.addConstraint(Sketcher.Constraint("Equal", 9, 10))
sketch6.addConstraint(Sketcher.Constraint("Equal", 11, 12))
sketch6.addConstraint(Sketcher.Constraint("Equal", 14, 15))
sketch6.addConstraint(Sketcher.Constraint("Equal", 16, 17))
sketch6.addConstraint(Sketcher.Constraint("Equal", 19, 20))
sketch6.addConstraint(Sketcher.Constraint("Equal", 21, 22))
sketch6.addConstraint(Sketcher.Constraint("Equal", 23, 24))
sketch6.addConstraint(Sketcher.Constraint("Equal", 26, 27))
sketch6.addConstraint(Sketcher.Constraint("Equal", 29, 30))
sketch6.addConstraint(Sketcher.Constraint("Equal", 31, 32))
sketch6.addConstraint(Sketcher.Constraint("Equal", 33, 34))
sketch6.addConstraint(Sketcher.Constraint("Equal", 36, 37))
sketch6.addConstraint(Sketcher.Constraint("Symmetric", 10, 3, 20, 3, -1, 1))
sketch6.addConstraint(Sketcher.Constraint("Symmetric", 15, 3, 22, 3, -1, 1))
sketch6.addConstraint(Sketcher.Constraint("Symmetric", 17, 3, 24, 3, -1, 1))
sketch6.addConstraint(Sketcher.Constraint("Symmetric", 12, 3, 27, 3, -1, 1))
sketch6.addConstraint(Sketcher.Constraint("Symmetric", 0, 3, 30, 3, -1, 1))
sketch6.addConstraint(Sketcher.Constraint("Symmetric", 5, 3, 32, 3, -1, 1))
sketch6.addConstraint(Sketcher.Constraint("Symmetric", 7, 3, 34, 3, -1, 1))
sketch6.addConstraint(Sketcher.Constraint("Symmetric", 2, 3, 37, 3, -1, 1))
sketch6.addConstraint(Sketcher.Constraint("Symmetric", 15, 3, 20, 3, -2))
sketch6.addConstraint(Sketcher.Constraint("Symmetric", 12, 3, 24, 3, -2))
sketch6.addConstraint(Sketcher.Constraint("Symmetric", 5, 3, 30, 3, -2))
sketch6.addConstraint(Sketcher.Constraint("Symmetric", 2, 3, 34, 3, -2))
sketch6.addConstraint(Sketcher.Constraint("Horizontal", 1, 3, 10, 3))
sketch6.addConstraint(Sketcher.Constraint("Horizontal", 4, 3, 12, 3))
sketch6.addConstraint(Sketcher.Constraint("Horizontal", 33, 3, 0, 1))
sketch6.addConstraint(Sketcher.Constraint("Horizontal", 36, 3, 4, 2))
sketch6.addConstraint(Sketcher.Constraint("Horizontal", 31, 3, 5, 1))
sketch6.addConstraint(Sketcher.Constraint("Horizontal", 39, 3, 8, 2))
sketch6.addConstraint(Sketcher.Constraint("Horizontal", 0, 1, 10, 1))
sketch6.addConstraint(Sketcher.Constraint("Horizontal", 4, 2, 14, 2))
sketch6.addConstraint(Sketcher.Constraint("Horizontal", 5, 1, 15, 1))
sketch6.addConstraint(Sketcher.Constraint("Horizontal", 8, 2, 18, 2))
sketch6.addConstraint(Sketcher.Constraint("Horizontal", 15, 1, 21, 1))
sketch6.addConstraint(Sketcher.Constraint("Horizontal", 10, 1, 22, 1))
sketch6.addConstraint(Sketcher.Constraint("Horizontal", 14, 2, 26, 2))
sketch6.addConstraint(Sketcher.Constraint("Horizontal", 18, 2, 29, 2))
sketch6.addConstraint(Sketcher.Constraint("Horizontal", 21, 1, 31, 1))
sketch6.addConstraint(Sketcher.Constraint("Horizontal", 22, 1, 32, 1))
sketch6.addConstraint(Sketcher.Constraint("Horizontal", 26, 2, 36, 2))
sketch6.addConstraint(Sketcher.Constraint("Horizontal", 29, 2, 39, 2))
sketch6.addConstraint(Sketcher.Constraint("Vertical", 1, 3, 2, 3))
sketch6.addConstraint(Sketcher.Constraint("Vertical", 11, 3, 12, 3))
sketch6.addConstraint(Sketcher.Constraint("Vertical", 9, 3, 1, 1))
sketch6.addConstraint(Sketcher.Constraint("Vertical", 1, 1, 2, 2))
sketch6.addConstraint(Sketcher.Constraint("Vertical", 2, 2, 3, 2))
sketch6.addConstraint(Sketcher.Constraint("Vertical", 3, 2, 6, 1))
sketch6.addConstraint(Sketcher.Constraint("Vertical", 6, 1, 7, 2))
sketch6.addConstraint(Sketcher.Constraint("Vertical", 7, 2, 9, 2))
sketch6.addConstraint(Sketcher.Constraint("Vertical", 19, 3, 11, 1))
sketch6.addConstraint(Sketcher.Constraint("Vertical", 11, 1, 12, 2))
sketch6.addConstraint(Sketcher.Constraint("Vertical", 12, 2, 13, 2))
sketch6.addConstraint(Sketcher.Constraint("Vertical", 13, 2, 16, 1))
sketch6.addConstraint(Sketcher.Constraint("Vertical", 16, 1, 17, 2))
sketch6.addConstraint(Sketcher.Constraint("Vertical", 17, 2, 19, 2))
sketch6.addConstraint(Sketcher.Constraint("Vertical", 29, 3, 20, 1))
sketch6.addConstraint(Sketcher.Constraint("Vertical", 20, 1, 23, 1))
sketch6.addConstraint(Sketcher.Constraint("Vertical", 23, 1, 24, 2))
sketch6.addConstraint(Sketcher.Constraint("Vertical", 24, 2, 25, 2))
sketch6.addConstraint(Sketcher.Constraint("Vertical", 25, 2, 27, 2))
sketch6.addConstraint(Sketcher.Constraint("Vertical", 27, 2, 28, 2))
sketch6.addConstraint(Sketcher.Constraint("Vertical", 39, 3, 30, 1))
sketch6.addConstraint(Sketcher.Constraint("Vertical", 30, 1, 33, 1))
sketch6.addConstraint(Sketcher.Constraint("Vertical", 33, 1, 34, 2))
sketch6.addConstraint(Sketcher.Constraint("Vertical", 34, 2, 35, 2))
sketch6.addConstraint(Sketcher.Constraint("Vertical", 35, 2, 37, 2))
sketch6.addConstraint(Sketcher.Constraint("Vertical", 37, 2, 38, 2))
sketch6.addConstraint(Sketcher.Constraint("Radius", 0, Q("0.26 in")))
sketch6.addConstraint(Sketcher.Constraint("DistanceX", 0, 3, -1, 1, Q("1.2 in")))
sketch6.addConstraint(Sketcher.Constraint("DistanceX", 10, 3, -1, 1, Q("0.4 in")))
sketch6.addConstraint(Sketcher.Constraint("DistanceY", 0, 3, -1, 1, Q("1.05 in")))
sketch6.addConstraint(Sketcher.Constraint("DistanceY", 2, 3, -1, 1, Q("0.35 in")))
pocket5 = body.newObject("PartDesign::Pocket", "Pocket004")
pocket5.Profile = sketch6
pocket5.Length = Q("0.53125 in")

doc.recompute()
